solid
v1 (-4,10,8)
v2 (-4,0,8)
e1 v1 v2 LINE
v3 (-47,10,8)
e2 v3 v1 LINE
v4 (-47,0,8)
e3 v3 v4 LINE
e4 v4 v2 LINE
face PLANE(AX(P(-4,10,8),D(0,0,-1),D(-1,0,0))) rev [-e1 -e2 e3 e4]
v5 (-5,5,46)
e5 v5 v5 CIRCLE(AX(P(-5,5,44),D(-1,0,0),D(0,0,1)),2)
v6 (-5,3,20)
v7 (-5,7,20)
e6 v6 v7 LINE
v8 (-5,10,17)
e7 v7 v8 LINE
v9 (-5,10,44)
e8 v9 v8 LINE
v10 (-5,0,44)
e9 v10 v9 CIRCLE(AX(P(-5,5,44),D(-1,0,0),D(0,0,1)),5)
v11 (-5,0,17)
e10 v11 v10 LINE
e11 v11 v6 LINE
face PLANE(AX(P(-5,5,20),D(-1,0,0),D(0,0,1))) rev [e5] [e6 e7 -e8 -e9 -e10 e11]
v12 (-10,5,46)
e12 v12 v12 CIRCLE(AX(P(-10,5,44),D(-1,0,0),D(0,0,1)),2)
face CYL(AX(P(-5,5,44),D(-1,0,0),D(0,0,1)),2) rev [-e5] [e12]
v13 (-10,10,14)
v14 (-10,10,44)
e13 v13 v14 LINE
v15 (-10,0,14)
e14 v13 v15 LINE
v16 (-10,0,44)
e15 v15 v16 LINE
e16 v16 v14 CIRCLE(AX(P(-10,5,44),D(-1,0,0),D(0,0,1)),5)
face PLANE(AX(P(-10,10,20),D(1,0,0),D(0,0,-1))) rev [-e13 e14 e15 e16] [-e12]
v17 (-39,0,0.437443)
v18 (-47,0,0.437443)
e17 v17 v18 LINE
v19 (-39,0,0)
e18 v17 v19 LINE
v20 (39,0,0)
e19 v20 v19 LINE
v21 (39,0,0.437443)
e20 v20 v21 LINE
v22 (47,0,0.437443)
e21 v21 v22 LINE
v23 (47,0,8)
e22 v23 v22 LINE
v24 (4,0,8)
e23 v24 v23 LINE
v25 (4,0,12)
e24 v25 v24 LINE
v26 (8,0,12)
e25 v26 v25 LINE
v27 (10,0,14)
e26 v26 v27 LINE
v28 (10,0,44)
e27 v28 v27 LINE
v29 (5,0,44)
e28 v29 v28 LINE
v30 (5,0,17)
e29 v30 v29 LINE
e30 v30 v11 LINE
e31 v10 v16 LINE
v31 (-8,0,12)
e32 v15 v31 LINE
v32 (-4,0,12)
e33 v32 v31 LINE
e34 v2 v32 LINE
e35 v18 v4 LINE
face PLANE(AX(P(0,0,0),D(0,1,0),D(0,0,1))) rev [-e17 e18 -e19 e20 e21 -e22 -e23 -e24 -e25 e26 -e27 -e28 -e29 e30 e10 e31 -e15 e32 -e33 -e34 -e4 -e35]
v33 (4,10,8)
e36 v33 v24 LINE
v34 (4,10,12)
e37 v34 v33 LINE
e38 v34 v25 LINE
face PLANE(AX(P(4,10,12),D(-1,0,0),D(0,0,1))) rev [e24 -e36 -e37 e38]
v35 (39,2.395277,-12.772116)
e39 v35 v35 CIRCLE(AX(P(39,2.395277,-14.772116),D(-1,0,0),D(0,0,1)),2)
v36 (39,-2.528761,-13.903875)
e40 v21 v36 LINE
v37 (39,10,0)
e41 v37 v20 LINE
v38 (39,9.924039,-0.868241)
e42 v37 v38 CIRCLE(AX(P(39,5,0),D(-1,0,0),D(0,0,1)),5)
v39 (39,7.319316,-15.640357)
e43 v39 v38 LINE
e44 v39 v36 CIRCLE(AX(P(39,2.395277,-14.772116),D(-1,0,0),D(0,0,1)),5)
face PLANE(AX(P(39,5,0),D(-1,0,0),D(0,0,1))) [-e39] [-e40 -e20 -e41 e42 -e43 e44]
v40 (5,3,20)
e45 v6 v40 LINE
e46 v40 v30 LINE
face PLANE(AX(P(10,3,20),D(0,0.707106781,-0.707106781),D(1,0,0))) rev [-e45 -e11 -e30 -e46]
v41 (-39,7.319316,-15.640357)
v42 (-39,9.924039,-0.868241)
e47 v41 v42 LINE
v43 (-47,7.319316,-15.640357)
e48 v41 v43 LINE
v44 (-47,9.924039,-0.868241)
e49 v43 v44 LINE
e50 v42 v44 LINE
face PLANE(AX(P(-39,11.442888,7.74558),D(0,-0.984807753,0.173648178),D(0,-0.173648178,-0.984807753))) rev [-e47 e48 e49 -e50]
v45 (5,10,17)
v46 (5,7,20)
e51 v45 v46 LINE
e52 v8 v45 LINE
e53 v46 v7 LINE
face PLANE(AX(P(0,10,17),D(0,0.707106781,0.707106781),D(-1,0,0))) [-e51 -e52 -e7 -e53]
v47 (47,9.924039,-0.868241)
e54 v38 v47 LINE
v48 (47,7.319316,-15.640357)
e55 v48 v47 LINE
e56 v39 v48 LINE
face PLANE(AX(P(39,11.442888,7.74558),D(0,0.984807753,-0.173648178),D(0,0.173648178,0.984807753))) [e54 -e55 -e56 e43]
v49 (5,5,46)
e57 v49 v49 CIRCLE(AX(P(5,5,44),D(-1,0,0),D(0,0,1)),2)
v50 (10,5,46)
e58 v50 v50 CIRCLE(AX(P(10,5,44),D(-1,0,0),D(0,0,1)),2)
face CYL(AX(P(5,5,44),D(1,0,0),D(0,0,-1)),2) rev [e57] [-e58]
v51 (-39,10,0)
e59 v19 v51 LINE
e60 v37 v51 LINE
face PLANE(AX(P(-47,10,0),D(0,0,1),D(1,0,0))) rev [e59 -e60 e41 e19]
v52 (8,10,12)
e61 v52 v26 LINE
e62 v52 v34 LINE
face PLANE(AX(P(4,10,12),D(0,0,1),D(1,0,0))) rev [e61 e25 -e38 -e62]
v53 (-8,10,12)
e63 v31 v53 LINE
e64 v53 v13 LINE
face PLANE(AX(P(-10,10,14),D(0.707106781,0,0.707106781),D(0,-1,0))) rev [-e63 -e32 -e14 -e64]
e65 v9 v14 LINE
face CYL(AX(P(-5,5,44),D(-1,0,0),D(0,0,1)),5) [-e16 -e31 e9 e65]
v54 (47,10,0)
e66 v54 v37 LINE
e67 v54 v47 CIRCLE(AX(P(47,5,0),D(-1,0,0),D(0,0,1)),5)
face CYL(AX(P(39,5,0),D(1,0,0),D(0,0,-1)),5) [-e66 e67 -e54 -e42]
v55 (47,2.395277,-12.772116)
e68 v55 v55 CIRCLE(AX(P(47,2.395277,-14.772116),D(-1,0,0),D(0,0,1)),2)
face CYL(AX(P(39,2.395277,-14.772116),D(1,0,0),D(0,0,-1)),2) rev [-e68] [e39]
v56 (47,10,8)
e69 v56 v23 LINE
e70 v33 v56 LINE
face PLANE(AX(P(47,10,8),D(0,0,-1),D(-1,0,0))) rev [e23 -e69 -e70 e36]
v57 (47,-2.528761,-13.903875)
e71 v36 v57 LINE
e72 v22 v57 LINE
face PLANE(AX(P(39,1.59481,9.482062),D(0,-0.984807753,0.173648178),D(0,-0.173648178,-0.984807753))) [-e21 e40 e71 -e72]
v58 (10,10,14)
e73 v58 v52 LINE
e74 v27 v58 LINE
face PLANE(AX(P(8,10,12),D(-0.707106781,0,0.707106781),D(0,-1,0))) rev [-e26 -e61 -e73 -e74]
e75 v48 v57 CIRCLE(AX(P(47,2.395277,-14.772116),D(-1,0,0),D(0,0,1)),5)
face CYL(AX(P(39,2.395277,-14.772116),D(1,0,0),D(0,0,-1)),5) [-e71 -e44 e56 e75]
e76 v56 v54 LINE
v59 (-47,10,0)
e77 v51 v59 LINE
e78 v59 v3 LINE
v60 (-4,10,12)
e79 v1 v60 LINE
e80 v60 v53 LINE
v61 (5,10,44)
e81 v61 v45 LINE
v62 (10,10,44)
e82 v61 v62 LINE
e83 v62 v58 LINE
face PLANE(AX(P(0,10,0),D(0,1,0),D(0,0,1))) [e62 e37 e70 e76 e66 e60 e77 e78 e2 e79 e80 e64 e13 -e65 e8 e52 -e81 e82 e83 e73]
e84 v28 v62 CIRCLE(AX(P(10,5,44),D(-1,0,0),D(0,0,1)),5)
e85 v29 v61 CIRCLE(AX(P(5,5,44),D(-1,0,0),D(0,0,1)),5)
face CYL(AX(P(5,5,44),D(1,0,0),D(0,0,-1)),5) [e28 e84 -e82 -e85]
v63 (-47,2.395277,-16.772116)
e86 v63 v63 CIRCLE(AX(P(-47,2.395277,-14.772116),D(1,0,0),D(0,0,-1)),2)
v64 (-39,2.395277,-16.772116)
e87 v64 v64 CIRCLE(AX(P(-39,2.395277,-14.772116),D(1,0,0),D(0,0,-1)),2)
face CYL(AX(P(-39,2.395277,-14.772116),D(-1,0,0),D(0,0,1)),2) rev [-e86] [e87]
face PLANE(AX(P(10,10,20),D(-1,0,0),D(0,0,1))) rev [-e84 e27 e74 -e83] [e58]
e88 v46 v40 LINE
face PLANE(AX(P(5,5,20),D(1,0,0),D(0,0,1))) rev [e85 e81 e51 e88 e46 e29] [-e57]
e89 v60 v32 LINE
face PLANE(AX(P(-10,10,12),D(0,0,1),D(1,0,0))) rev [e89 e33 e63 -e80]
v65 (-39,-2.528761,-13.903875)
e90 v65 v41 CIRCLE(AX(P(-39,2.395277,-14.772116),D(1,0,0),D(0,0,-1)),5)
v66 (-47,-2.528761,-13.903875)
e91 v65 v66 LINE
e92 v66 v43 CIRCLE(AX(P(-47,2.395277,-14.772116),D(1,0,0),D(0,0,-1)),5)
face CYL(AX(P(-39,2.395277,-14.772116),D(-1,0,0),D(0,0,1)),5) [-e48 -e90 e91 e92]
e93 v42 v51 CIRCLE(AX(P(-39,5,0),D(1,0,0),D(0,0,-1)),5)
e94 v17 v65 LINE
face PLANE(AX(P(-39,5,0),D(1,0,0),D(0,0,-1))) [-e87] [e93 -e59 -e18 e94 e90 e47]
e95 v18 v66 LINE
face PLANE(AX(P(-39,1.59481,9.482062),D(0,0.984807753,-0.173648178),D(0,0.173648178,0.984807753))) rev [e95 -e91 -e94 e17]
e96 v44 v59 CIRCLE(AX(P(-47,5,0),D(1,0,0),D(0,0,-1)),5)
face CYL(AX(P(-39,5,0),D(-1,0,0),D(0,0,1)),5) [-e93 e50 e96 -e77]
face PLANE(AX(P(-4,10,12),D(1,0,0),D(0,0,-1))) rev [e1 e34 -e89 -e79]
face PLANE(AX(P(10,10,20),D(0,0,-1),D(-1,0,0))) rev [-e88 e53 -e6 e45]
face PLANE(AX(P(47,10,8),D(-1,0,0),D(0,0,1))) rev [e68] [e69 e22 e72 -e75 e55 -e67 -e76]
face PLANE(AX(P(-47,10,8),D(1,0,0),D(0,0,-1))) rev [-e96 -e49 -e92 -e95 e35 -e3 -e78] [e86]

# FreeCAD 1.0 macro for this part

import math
import FreeCAD as App
import Part
import Sketcher
Q = App.Units.Quantity


def edges_at(feature, points):
    """Names of the edges that pass closest to the given points."""
    edges = feature.Shape.Edges
    near = lambda p: min(range(len(edges)), key=lambda i: edges[i].distToShape(Part.Vertex(*p))[0])
    return sorted({f"Edge{near(p) + 1}" for p in points})


def add_polygon(sketch, points):
    """Adds a closed chain of lines whose ends are joined by coincident constraints."""
    first, n = sketch.GeometryCount, len(points)
    for a, b in zip(points, points[1:] + points[:1]):
        sketch.addGeometry(Part.LineSegment(App.Vector(*a, 0), App.Vector(*b, 0)), False)
    for i in range(n):
        sketch.addConstraint(Sketcher.Constraint("Coincident", first + i, 2, first + (i + 1) % n, 1))

doc = App.newDocument("Part")
body = doc.addObject("PartDesign::Body", "Body")

sketch1 = doc.addObject("Sketcher::SketchObject", "Sketch")
body.addObject(sketch1)
sketch1.AttachmentSupport = (doc.XZ_Plane, [""])
sketch1.MapMode = "FlatFace"
add_polygon(sketch1, [(47, 0), (-47, 0), (-47, 8), (-4, 8), (-4, 12), (-10, 12), (-10, 20), (10, 20), (10, 12), (4, 12), (4, 8), (47, 8)])
sketch1.addConstraint(Sketcher.Constraint("Horizontal", 0))
sketch1.addConstraint(Sketcher.Constraint("Vertical", 1))
sketch1.addConstraint(Sketcher.Constraint("Horizontal", 2))
sketch1.addConstraint(Sketcher.Constraint("Vertical", 3))
sketch1.addConstraint(Sketcher.Constraint("Horizontal", 4))
sketch1.addConstraint(Sketcher.Constraint("Vertical", 5))
sketch1.addConstraint(Sketcher.Constraint("Horizontal", 6))
sketch1.addConstraint(Sketcher.Constraint("Vertical", 7))
sketch1.addConstraint(Sketcher.Constraint("Horizontal", 8))
sketch1.addConstraint(Sketcher.Constraint("Vertical", 9))
sketch1.addConstraint(Sketcher.Constraint("Horizontal", 10))
sketch1.addConstraint(Sketcher.Constraint("Vertical", 11))
sketch1.addConstraint(Sketcher.Constraint("Symmetric", 0, 2, 11, 2, -1, 1))
sketch1.addConstraint(Sketcher.Constraint("Symmetric", 4, 2, 7, 2, -2))
sketch1.addConstraint(Sketcher.Constraint("Symmetric", 2, 2, 9, 2, -2))
sketch1.addConstraint(Sketcher.Constraint("Equal", 1, 5))
sketch1.addConstraint(Sketcher.Constraint("DistanceX", 0, 2, 0, 1, 94.0))
sketch1.addConstraint(Sketcher.Constraint("DistanceX", 2, 1, 2, 2, 43.0))
sketch1.addConstraint(Sketcher.Constraint("DistanceX", 4, 2, 4, 1, 6.0))
sketch1.addConstraint(Sketcher.Constraint("DistanceY", 1, 1, 1, 2, 8.0))
sketch1.addConstraint(Sketcher.Constraint("DistanceY", 3, 1, 3, 2, 4.0))
pad1 = doc.addObject("PartDesign::Pad", "Pad")
body.addObject(pad1)
pad1.Profile = sketch1
pad1.Length = 10
pad1.Reversed = True

sketch2 = doc.addObject("Sketcher::SketchObject", "Sketch001")
body.addObject(sketch2)
sketch2.AttachmentSupport = (doc.YZ_Plane, [""])
sketch2.MapMode = "FlatFace"
sketch2.AttachmentOffset = App.Placement(App.Vector(0, 0, 47), App.Rotation())
sketch2.addGeometry(Part.LineSegment(App.Vector(7.3, -15.6, 0), App.Vector(9.9, -0.9, 0)), False)
sketch2.addGeometry(Part.ArcOfCircle(Part.Circle(App.Vector(5, 0, 0), App.Vector(0, 0, 1), 5), math.radians(-10), math.radians(170)), False)
sketch2.addGeometry(Part.LineSegment(App.Vector(0.1, 0.9, 0), App.Vector(-2.5, -13.9, 0)), False)
sketch2.addGeometry(Part.ArcOfCircle(Part.Circle(App.Vector(2.4, -14.8, 0), App.Vector(0, 0, 1), 5), math.radians(170), math.radians(350)), False)
sketch2.addGeometry(Part.Circle(App.Vector(2.4, -14.8, 0), App.Vector(0, 0, 1), 2), False)
sketch2.addConstraint(Sketcher.Constraint("Tangent", 0, 2, 1, 1))
sketch2.addConstraint(Sketcher.Constraint("Tangent", 1, 2, 2, 1))
sketch2.addConstraint(Sketcher.Constraint("Tangent", 2, 2, 3, 1))
sketch2.addConstraint(Sketcher.Constraint("Tangent", 3, 2, 0, 1))
sketch2.addConstraint(Sketcher.Constraint("Coincident", 4, 3, 3, 3))
sketch2.addConstraint(Sketcher.Constraint("Equal", 1, 3))
sketch2.addConstraint(Sketcher.Constraint("PointOnObject", 1, 3, -1))
sketch2.addConstraint(Sketcher.Constraint("Diameter", 4, 4.0))
sketch2.addConstraint(Sketcher.Constraint("Radius", 1, 5.0))
sketch2.addConstraint(Sketcher.Constraint("Angle", 0, Q("80 deg")))
sketch2.addConstraint(Sketcher.Constraint("Distance", 0, 15.0))
sketch2.addConstraint(Sketcher.Constraint("DistanceX", -1, 1, 1, 3, 5.0))
pad2 = doc.addObject("PartDesign::Pad", "Pad001")
body.addObject(pad2)
pad2.Profile = sketch2
pad2.Length = 8
pad2.Reversed = True

sketch3 = doc.addObject("Sketcher::SketchObject", "Sketch002")
body.addObject(sketch3)
sketch3.AttachmentSupport = (doc.YZ_Plane, [""])
sketch3.MapMode = "FlatFace"
sketch3.AttachmentOffset = App.Placement(App.Vector(0, 0, -39), App.Rotation())
sketch3.addGeometry(Part.LineSegment(App.Vector(7.3, -15.6, 0), App.Vector(9.9, -0.9, 0)), False)
sketch3.addGeometry(Part.ArcOfCircle(Part.Circle(App.Vector(5, 0, 0), App.Vector(0, 0, 1), 5), math.radians(-10), math.radians(170)), False)
sketch3.addGeometry(Part.LineSegment(App.Vector(0.1, 0.9, 0), App.Vector(-2.5, -13.9, 0)), False)
sketch3.addGeometry(Part.ArcOfCircle(Part.Circle(App.Vector(2.4, -14.8, 0), App.Vector(0, 0, 1), 5), math.radians(170), math.radians(350)), False)
sketch3.addGeometry(Part.Circle(App.Vector(2.4, -14.8, 0), App.Vector(0, 0, 1), 2), False)
sketch3.addConstraint(Sketcher.Constraint("Tangent", 0, 2, 1, 1))
sketch3.addConstraint(Sketcher.Constraint("Tangent", 1, 2, 2, 1))
sketch3.addConstraint(Sketcher.Constraint("Tangent", 2, 2, 3, 1))
sketch3.addConstraint(Sketcher.Constraint("Tangent", 3, 2, 0, 1))
sketch3.addConstraint(Sketcher.Constraint("Coincident", 4, 3, 3, 3))
sketch3.addConstraint(Sketcher.Constraint("Equal", 1, 3))
sketch3.addConstraint(Sketcher.Constraint("PointOnObject", 1, 3, -1))
sketch3.addConstraint(Sketcher.Constraint("Diameter", 4, 4.0))
sketch3.addConstraint(Sketcher.Constraint("Radius", 1, 5.0))
sketch3.addConstraint(Sketcher.Constraint("Angle", 0, Q("80 deg")))
sketch3.addConstraint(Sketcher.Constraint("Distance", 0, 15.0))
sketch3.addConstraint(Sketcher.Constraint("DistanceX", -1, 1, 1, 3, 5.0))
pad3 = doc.addObject("PartDesign::Pad", "Pad002")
body.addObject(pad3)
pad3.Profile = sketch3
pad3.Length = 8
pad3.Reversed = True
doc.recompute()

chamfer = doc.addObject("PartDesign::Chamfer", "Chamfer")
body.addObject(chamfer)
chamfer.Base = (pad3, edges_at(pad3, [(10, 5, 12), (-10, 5, 12)]))
chamfer.Size = 2

sketch4 = doc.addObject("Sketcher::SketchObject", "Sketch003")
body.addObject(sketch4)
sketch4.AttachmentSupport = (doc.YZ_Plane, [""])
sketch4.MapMode = "FlatFace"
sketch4.AttachmentOffset = App.Placement(App.Vector(0, 0, -10), App.Rotation())
sketch4.addGeometry(Part.LineSegment(App.Vector(10, 44, 0), App.Vector(10, 20, 0)), False)
sketch4.addGeometry(Part.ArcOfCircle(Part.Circle(App.Vector(5, 20, 0), App.Vector(0, 0, 1), 5), math.radians(180), math.radians(360)), False)
sketch4.addGeometry(Part.LineSegment(App.Vector(0, 20, 0), App.Vector(0, 44, 0)), False)
sketch4.addGeometry(Part.ArcOfCircle(Part.Circle(App.Vector(5, 44, 0), App.Vector(0, 0, 1), 5), math.radians(0), math.radians(180)), False)
sketch4.addGeometry(Part.Circle(App.Vector(5, 44, 0), App.Vector(0, 0, 1), 2), False)
sketch4.addConstraint(Sketcher.Constraint("Tangent", 0, 2, 1, 2))
sketch4.addConstraint(Sketcher.Constraint("Tangent", 1, 1, 2, 1))
sketch4.addConstraint(Sketcher.Constraint("Tangent", 2, 2, 3, 2))
sketch4.addConstraint(Sketcher.Constraint("Tangent", 3, 1, 0, 1))
sketch4.addConstraint(Sketcher.Constraint("Vertical", 0))
sketch4.addConstraint(Sketcher.Constraint("Vertical", 2))
sketch4.addConstraint(Sketcher.Constraint("Coincident", 4, 3, 3, 3))
sketch4.addConstraint(Sketcher.Constraint("PointOnObject", 1, 1, -2))
sketch4.addConstraint(Sketcher.Constraint("Diameter", 4, 4.0))
sketch4.addConstraint(Sketcher.Constraint("Radius", 1, 5.0))
sketch4.addConstraint(Sketcher.Constraint("DistanceY", 0, 2, 0, 1, 24.0))
sketch4.addConstraint(Sketcher.Constraint("DistanceY", -1, 1, 1, 3, 20.0))
pad4 = doc.addObject("PartDesign::Pad", "Pad003")
body.addObject(pad4)
pad4.Profile = sketch4
pad4.Length = 5
doc.recompute()

mirrored = doc.addObject("PartDesign::Mirrored", "Mirrored")
body.addObject(mirrored)
mirrored.Originals = [pad4]
mirrored.MirrorPlane = (doc.YZ_Plane, [""])
body.Tip = mirrored
doc.recompute()

chamfer2 = doc.addObject("PartDesign::Chamfer", "Chamfer001")
body.addObject(chamfer2)
chamfer2.Base = (mirrored, edges_at(mirrored, [(0, 0, 20), (0, 10, 20)]))
chamfer2.Size = 3

doc.recompute()
